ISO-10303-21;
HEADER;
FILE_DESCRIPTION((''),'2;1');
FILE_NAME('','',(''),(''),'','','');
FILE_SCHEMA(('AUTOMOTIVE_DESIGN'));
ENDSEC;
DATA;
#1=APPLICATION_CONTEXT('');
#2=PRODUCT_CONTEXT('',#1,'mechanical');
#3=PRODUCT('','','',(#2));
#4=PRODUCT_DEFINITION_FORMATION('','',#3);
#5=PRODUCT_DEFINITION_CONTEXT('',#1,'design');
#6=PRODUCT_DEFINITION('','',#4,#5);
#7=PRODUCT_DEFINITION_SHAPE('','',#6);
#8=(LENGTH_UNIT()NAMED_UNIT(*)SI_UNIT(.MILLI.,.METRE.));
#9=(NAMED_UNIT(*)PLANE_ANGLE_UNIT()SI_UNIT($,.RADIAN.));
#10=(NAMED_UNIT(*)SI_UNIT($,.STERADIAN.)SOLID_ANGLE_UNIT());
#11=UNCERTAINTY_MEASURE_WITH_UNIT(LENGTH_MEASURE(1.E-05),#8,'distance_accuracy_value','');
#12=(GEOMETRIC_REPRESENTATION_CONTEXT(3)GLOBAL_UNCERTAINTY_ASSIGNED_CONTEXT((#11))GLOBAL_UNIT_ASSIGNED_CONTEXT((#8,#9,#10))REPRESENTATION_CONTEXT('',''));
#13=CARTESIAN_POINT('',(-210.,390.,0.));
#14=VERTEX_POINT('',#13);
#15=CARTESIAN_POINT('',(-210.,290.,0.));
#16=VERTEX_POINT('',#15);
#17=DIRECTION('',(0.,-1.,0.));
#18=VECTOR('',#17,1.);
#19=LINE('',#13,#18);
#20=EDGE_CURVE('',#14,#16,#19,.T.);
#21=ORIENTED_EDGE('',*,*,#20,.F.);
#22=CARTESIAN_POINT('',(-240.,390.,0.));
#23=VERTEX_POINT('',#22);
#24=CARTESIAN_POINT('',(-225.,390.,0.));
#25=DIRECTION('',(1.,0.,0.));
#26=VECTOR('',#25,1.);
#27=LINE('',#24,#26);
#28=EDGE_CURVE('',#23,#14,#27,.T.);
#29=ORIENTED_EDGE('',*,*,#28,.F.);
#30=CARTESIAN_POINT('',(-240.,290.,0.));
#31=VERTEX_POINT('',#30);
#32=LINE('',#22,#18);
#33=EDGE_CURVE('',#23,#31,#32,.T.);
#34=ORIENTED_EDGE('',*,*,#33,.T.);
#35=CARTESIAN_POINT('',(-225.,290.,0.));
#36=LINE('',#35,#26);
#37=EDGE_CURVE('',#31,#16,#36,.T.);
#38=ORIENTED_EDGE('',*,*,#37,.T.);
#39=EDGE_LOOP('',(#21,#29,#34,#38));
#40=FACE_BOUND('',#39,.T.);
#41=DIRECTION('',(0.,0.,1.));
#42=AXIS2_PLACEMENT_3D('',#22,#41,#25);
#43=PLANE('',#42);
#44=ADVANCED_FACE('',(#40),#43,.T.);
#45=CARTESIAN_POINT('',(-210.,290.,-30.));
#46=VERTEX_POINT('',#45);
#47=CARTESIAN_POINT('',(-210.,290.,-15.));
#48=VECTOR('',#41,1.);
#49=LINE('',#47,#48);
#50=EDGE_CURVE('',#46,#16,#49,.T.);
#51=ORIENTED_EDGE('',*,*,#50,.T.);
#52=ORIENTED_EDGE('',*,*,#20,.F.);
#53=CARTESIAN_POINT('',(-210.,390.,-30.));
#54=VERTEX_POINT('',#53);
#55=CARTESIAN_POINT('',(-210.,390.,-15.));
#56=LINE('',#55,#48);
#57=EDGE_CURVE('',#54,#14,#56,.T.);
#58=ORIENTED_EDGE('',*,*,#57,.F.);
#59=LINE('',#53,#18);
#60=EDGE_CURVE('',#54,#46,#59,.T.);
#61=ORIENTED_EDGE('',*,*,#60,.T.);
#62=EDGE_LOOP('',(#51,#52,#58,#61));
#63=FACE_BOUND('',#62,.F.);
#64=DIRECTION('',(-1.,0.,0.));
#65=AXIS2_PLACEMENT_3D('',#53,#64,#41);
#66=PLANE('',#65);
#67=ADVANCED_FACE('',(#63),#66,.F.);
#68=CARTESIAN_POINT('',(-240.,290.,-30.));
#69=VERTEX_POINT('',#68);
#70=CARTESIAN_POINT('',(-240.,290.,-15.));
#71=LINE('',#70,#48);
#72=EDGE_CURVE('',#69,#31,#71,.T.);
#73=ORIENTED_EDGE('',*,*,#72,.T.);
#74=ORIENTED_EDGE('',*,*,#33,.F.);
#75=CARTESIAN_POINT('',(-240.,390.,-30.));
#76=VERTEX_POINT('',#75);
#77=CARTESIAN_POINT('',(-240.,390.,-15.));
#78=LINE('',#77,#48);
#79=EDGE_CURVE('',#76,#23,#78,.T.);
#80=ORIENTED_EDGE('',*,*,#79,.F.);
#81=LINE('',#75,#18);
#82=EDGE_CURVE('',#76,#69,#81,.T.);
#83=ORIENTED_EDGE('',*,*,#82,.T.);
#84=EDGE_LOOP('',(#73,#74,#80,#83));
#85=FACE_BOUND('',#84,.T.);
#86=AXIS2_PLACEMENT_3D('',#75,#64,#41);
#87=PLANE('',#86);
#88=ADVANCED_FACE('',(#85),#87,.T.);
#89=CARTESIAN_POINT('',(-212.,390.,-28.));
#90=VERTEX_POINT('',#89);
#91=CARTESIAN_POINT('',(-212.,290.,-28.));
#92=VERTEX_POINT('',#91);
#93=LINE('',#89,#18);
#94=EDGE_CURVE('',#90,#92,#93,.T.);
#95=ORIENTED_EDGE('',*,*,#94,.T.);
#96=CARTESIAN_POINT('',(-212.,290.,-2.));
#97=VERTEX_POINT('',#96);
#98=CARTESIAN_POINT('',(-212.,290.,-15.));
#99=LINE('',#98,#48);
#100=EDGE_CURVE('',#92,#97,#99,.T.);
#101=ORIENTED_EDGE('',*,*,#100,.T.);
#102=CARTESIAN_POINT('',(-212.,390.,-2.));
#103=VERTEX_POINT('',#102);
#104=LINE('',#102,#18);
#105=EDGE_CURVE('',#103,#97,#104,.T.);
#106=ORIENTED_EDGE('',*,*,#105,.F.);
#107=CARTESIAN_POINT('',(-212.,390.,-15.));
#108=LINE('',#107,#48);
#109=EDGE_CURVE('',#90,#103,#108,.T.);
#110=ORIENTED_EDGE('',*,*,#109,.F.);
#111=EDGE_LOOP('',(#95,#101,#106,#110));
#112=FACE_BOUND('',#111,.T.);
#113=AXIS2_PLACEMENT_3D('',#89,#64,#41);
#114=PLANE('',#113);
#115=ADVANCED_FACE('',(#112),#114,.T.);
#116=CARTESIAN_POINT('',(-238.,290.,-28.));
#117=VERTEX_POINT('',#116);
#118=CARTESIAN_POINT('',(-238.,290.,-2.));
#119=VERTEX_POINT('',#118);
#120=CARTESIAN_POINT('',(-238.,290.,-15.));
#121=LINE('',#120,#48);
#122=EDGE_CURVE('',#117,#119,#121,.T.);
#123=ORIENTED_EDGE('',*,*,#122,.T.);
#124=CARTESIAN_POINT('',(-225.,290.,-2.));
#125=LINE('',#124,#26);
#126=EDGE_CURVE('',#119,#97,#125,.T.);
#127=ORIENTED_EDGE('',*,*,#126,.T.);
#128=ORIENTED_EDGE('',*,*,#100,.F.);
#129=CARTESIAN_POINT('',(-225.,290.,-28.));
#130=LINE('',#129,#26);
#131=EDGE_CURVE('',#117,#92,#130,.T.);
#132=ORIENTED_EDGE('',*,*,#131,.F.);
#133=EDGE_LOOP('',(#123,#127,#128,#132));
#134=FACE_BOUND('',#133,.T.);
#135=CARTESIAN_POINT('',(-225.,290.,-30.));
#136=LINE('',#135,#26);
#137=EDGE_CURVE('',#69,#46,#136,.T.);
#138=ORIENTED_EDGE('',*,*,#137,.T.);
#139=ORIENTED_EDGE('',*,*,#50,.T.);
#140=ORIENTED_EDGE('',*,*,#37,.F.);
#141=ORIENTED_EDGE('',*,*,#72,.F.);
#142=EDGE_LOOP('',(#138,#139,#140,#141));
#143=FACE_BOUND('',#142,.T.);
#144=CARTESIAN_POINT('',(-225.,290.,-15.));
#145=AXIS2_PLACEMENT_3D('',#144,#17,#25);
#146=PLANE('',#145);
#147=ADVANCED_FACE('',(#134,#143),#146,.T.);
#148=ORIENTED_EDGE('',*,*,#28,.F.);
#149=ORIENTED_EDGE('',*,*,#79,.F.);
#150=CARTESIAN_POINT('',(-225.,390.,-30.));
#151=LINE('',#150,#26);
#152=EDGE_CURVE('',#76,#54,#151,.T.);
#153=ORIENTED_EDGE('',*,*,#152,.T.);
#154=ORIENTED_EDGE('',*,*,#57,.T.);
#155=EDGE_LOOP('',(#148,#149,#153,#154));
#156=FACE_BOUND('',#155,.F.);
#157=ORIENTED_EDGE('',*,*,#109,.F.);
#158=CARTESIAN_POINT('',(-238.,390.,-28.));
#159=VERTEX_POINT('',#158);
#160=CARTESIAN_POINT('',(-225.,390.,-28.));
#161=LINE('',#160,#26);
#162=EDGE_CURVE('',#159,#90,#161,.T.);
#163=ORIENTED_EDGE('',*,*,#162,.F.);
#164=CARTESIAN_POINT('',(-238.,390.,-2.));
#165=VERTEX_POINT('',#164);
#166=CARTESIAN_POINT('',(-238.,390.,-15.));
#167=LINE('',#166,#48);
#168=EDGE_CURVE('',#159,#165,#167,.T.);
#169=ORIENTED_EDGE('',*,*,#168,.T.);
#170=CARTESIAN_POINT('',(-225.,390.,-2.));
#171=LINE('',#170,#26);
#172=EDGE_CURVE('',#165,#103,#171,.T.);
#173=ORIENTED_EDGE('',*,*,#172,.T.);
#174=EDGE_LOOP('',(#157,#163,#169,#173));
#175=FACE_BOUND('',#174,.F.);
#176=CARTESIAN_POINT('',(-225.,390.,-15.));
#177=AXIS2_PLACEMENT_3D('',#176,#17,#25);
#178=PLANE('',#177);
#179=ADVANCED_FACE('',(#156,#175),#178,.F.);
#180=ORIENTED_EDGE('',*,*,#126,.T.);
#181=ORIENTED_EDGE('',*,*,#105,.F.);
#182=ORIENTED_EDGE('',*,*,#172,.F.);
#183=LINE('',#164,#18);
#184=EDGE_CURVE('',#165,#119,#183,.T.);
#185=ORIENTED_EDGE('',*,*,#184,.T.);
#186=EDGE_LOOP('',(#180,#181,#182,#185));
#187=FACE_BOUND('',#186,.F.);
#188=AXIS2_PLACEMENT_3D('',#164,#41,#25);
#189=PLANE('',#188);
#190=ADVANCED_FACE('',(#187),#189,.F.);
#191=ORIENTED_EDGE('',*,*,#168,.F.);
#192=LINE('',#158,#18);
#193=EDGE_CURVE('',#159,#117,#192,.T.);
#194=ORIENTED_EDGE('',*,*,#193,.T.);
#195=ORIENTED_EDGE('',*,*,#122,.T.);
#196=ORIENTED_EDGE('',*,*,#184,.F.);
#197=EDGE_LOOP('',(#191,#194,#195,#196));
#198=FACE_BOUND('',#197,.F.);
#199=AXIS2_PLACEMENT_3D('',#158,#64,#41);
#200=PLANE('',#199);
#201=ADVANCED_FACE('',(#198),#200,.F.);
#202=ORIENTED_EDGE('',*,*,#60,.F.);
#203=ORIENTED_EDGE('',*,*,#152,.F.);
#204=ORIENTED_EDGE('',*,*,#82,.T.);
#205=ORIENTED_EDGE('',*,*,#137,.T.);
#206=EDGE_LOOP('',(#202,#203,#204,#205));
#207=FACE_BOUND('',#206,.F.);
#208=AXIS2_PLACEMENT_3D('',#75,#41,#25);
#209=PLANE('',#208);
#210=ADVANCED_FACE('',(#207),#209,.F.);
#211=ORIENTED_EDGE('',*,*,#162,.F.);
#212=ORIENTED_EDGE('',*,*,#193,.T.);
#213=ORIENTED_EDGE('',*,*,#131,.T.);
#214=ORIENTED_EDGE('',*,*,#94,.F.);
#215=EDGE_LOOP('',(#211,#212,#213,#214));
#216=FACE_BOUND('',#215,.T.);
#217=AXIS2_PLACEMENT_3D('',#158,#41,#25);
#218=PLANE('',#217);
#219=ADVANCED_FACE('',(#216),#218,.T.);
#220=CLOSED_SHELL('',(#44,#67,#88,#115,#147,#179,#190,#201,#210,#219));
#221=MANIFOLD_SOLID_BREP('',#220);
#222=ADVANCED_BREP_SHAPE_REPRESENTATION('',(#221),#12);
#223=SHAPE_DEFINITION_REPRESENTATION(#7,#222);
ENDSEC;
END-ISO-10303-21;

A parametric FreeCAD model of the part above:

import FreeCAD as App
import Part
import Sketcher

V = App.Vector


def add_polygon(sketch, points):
    """Adds a closed chain of lines whose ends are joined by coincident constraints."""
    first, n = sketch.GeometryCount, len(points)
    for a, b in zip(points, points[1:] + points[:1]):
        sketch.addGeometry(Part.LineSegment(App.Vector(*a, 0), App.Vector(*b, 0)), False)
    for i in range(n):
        sketch.addConstraint(Sketcher.Constraint("Coincident", first + i, 2, first + (i + 1) % n, 1))

doc = App.newDocument("Part")
body = doc.addObject("PartDesign::Body", "Body")

# Sketch on XZ plane
sketch1 = doc.addObject("Sketcher::SketchObject", "Sketch")
body.addObject(sketch1)
sketch1.AttachmentSupport = (doc.XZ_Plane, [""])
sketch1.MapMode = "FlatFace"
add_polygon(sketch1, [(0, 0), (0, -30), (30, -30), (30, 0)])  # lines 0-3
add_polygon(sketch1, [(28, -28), (2, -28), (2, -2), (28, -2)])  # lines 4-7
sketch1.addConstraint(Sketcher.Constraint("Vertical", 0))
sketch1.addConstraint(Sketcher.Constraint("Horizontal", 1))
sketch1.addConstraint(Sketcher.Constraint("Vertical", 2))
sketch1.addConstraint(Sketcher.Constraint("Horizontal", 3))
sketch1.addConstraint(Sketcher.Constraint("Horizontal", 4))
sketch1.addConstraint(Sketcher.Constraint("Vertical", 5))
sketch1.addConstraint(Sketcher.Constraint("Horizontal", 6))
sketch1.addConstraint(Sketcher.Constraint("Vertical", 7))
sketch1.addConstraint(Sketcher.Constraint("Coincident", 3, 2, -1, 1))
sketch1.addConstraint(Sketcher.Constraint("Equal", 3, 0))
sketch1.addConstraint(Sketcher.Constraint("Equal", 6, 5))
sketch1.addConstraint(Sketcher.Constraint("DistanceX", 1, 1, 1, 2, 30.0))
sketch1.addConstraint(Sketcher.Constraint("DistanceX", 4, 2, 4, 1, 26.0))
sketch1.addConstraint(Sketcher.Constraint("DistanceX", -1, 1, 4, 2, 2.0))
sketch1.addConstraint(Sketcher.Constraint("DistanceY", 4, 2, -1, 1, 28.0))
pad1 = doc.addObject("PartDesign::Pad", "Pad")
body.addObject(pad1)
pad1.Profile = sketch1
pad1.Length = 100
body2 = doc.addObject("PartDesign::Body", "Body001")
doc.recompute()

body.Placement = App.Placement(V(-240, 390, 0), App.Rotation(V(0, 0, 1), 0))
boolean = doc.addObject("PartDesign::Boolean", "Boolean")
body2.addObject(boolean)
boolean.Type = "Fuse"
boolean.addObjects([body])

doc.recompute()
